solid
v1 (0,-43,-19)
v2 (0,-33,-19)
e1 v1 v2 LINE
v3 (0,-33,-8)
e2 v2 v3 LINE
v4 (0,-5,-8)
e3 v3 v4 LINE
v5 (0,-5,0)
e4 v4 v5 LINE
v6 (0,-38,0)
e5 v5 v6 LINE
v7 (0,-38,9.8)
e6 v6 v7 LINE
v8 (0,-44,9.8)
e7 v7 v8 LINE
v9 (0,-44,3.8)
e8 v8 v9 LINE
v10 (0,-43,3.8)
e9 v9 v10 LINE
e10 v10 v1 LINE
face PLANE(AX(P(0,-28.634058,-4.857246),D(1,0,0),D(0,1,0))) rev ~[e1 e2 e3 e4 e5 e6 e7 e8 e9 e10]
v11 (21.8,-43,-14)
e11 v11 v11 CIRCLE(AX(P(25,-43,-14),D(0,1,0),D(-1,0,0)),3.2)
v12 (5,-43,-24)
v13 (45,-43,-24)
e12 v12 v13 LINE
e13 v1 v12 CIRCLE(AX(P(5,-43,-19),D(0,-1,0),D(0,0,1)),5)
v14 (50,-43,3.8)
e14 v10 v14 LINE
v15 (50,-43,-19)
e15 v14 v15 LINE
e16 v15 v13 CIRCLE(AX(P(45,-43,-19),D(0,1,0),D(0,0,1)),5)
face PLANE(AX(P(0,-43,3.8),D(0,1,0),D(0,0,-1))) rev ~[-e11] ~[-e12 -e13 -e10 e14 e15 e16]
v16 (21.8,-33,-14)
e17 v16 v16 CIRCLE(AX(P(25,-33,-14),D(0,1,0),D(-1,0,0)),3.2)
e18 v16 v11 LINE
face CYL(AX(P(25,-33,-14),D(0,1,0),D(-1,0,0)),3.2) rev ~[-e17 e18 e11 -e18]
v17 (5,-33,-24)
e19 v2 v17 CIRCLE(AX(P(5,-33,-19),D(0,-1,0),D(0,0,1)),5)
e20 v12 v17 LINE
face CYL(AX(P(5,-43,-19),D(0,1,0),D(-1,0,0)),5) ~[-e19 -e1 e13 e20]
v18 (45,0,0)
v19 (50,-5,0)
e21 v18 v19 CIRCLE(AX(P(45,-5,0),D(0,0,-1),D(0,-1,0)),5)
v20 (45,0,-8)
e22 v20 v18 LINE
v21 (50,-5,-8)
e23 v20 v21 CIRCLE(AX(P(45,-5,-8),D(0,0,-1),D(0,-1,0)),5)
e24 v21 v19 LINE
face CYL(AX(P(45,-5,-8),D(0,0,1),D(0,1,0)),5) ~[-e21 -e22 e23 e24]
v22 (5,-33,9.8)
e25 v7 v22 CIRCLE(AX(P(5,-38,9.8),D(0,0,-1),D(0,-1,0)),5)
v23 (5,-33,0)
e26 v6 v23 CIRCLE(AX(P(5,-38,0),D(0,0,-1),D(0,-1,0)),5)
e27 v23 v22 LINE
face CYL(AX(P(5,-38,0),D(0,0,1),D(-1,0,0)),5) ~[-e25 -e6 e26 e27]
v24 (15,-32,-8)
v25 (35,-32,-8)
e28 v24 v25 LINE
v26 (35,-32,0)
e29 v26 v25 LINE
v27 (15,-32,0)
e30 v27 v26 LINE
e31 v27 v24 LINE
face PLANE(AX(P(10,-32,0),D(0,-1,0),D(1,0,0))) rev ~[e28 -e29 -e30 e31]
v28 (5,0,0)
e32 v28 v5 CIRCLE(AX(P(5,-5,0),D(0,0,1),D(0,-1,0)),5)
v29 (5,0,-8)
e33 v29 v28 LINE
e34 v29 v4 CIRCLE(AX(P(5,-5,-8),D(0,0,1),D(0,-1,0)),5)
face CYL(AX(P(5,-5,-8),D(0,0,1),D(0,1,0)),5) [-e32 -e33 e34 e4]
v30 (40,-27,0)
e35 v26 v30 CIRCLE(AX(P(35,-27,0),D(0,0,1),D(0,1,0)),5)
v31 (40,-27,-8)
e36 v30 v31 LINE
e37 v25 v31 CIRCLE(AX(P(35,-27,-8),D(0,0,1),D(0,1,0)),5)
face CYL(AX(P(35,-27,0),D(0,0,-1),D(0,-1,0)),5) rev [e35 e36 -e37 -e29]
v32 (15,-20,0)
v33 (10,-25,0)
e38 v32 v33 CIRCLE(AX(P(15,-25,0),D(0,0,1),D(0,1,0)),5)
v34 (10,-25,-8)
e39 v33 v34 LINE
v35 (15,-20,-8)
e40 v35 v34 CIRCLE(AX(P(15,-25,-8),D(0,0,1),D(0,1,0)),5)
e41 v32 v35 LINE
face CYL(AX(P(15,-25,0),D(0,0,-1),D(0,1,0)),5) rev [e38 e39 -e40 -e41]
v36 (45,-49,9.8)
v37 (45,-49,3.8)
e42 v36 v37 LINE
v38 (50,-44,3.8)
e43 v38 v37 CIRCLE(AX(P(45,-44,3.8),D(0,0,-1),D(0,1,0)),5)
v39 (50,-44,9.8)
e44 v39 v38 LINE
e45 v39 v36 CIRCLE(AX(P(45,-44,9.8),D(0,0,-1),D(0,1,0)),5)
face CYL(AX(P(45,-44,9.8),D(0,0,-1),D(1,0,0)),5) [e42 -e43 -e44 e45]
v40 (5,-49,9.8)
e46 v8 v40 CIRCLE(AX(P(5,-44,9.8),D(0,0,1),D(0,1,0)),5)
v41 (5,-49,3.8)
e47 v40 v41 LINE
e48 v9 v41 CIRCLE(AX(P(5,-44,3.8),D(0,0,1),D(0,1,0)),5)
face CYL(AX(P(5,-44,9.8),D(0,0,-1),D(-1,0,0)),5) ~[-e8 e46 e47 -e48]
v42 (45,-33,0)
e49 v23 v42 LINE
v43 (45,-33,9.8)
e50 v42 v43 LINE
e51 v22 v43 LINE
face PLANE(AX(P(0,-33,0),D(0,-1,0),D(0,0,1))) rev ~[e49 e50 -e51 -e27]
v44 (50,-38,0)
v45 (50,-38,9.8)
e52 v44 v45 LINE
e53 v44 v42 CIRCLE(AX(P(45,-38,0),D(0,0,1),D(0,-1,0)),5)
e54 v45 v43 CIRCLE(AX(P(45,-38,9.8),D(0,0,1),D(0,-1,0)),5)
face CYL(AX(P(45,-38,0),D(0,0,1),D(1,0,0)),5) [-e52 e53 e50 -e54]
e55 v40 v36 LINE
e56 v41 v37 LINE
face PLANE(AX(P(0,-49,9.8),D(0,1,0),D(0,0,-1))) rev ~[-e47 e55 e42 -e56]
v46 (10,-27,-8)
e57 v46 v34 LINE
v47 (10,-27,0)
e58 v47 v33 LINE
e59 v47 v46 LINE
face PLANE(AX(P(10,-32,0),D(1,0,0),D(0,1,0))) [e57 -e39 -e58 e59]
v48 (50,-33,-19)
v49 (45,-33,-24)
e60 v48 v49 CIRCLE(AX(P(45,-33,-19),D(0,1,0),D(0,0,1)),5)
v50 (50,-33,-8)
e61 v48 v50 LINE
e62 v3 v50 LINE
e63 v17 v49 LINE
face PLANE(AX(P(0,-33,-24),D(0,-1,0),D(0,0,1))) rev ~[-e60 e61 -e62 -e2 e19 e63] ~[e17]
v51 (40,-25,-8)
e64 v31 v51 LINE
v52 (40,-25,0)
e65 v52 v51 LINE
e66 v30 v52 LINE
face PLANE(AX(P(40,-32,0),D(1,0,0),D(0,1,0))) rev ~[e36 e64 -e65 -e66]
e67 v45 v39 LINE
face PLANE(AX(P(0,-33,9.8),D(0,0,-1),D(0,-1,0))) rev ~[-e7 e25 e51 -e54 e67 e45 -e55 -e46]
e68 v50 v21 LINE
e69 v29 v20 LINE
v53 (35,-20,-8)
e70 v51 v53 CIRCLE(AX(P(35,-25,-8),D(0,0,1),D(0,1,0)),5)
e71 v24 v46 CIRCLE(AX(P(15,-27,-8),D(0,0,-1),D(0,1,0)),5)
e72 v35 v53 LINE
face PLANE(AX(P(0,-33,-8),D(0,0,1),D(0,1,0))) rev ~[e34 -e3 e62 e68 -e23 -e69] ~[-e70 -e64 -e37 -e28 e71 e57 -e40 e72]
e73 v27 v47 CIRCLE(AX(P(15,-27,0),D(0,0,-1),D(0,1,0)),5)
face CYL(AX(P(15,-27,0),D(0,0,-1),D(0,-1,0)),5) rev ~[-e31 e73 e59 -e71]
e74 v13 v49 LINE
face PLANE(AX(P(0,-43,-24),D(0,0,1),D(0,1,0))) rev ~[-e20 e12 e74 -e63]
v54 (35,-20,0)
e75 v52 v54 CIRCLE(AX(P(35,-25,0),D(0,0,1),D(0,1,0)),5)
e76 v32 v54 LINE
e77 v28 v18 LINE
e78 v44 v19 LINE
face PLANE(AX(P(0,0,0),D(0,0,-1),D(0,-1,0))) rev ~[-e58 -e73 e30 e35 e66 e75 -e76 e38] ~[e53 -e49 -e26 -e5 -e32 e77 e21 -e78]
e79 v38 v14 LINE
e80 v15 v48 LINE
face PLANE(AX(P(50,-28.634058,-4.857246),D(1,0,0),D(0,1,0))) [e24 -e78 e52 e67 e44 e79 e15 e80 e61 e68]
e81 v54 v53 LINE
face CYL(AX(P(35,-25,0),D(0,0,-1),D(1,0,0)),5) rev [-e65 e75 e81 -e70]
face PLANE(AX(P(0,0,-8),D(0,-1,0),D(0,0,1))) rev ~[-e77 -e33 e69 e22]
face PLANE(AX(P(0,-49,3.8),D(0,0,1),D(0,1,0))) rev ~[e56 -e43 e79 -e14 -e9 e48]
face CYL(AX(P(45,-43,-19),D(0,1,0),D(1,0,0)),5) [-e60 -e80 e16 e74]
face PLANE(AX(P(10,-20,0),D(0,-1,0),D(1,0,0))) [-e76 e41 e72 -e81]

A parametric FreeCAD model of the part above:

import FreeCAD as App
import Part
import Sketcher
from FreeCAD import Vector


def edges_at(feature, points):
    """Names of the edges that pass closest to the given points."""
    edges = feature.Shape.Edges
    near = lambda p: min(range(len(edges)), key=lambda i: edges[i].distToShape(Part.Vertex(*p))[0])
    return sorted({f"Edge{near(p) + 1}" for p in points})

doc = App.newDocument("Part")
params = doc.addObject("Spreadsheet::Sheet", "Params")
for row, (alias, value) in enumerate([
    ("sketch1_width", "33 mm"),
    ("sketch1_width2", "16 mm"),
    ("sketch1_width3", "6 mm"),
    ("sketch1_height", "8 mm"),
    ("sketch1_height2", "9.8 mm"),
    ("pad1_length", "50 mm"),
    ("sketch2_diameter", "6.4 mm"),
    ("sketch3_width", "30 mm"),
    ("sketch3_height", "12 mm"),
    ("fillet_radius", "5 mm"),
], start=1):
    params.set(f"A{row}", alias)
    params.set(f"B{row}", "=" + value)
    params.setAlias(f"B{row}", alias)

body = doc.addObject("PartDesign::Body", "Body")

# Sketch on YZ plane
sketch1 = body.newObject("Sketcher::SketchObject", "Sketch")
sketch1.AttachmentSupport = (doc.getObject("YZ_Plane"), [""])
sketch1.MapMode = "FlatFace"
sketch1.addGeometry([
    Part.LineSegment(Vector(0, -8, 0), Vector(0, 0, 0)),  # 0
    Part.LineSegment(Vector(0, 0, 0), Vector(-33, 0, 0)),  # 1
    Part.LineSegment(Vector(-33, 0, 0), Vector(-33, 10, 0)),  # 2
    Part.LineSegment(Vector(-33, 10, 0), Vector(-49, 10, 0)),  # 3
    Part.LineSegment(Vector(-49, 10, 0), Vector(-49, 4, 0)),  # 4
    Part.LineSegment(Vector(-49, 4, 0), Vector(-43, 4, 0)),  # 5
    Part.LineSegment(Vector(-43, 4, 0), Vector(-43, -24, 0)),  # 6
    Part.LineSegment(Vector(-43, -24, 0), Vector(-33, -24, 0)),  # 7
    Part.LineSegment(Vector(-33, -24, 0), Vector(-33, -8, 0)),  # 8
    Part.LineSegment(Vector(-33, -8, 0), Vector(0, -8, 0)),  # 9
], False)
sketch1.addConstraint([
    Sketcher.Constraint("Coincident", 0, 2, 1, 1),
    Sketcher.Constraint("Coincident", 1, 2, 2, 1),
    Sketcher.Constraint("Coincident", 2, 2, 3, 1),
    Sketcher.Constraint("Coincident", 3, 2, 4, 1),
    Sketcher.Constraint("Coincident", 4, 2, 5, 1),
    Sketcher.Constraint("Coincident", 5, 2, 6, 1),
    Sketcher.Constraint("Coincident", 6, 2, 7, 1),
    Sketcher.Constraint("Coincident", 7, 2, 8, 1),
    Sketcher.Constraint("Coincident", 8, 2, 9, 1),
    Sketcher.Constraint("Coincident", 9, 2, 0, 1),
    Sketcher.Constraint("Vertical", 0),
    Sketcher.Constraint("Horizontal", 1),
    Sketcher.Constraint("Vertical", 2),
    Sketcher.Constraint("Horizontal", 3),
    Sketcher.Constraint("Vertical", 4),
    Sketcher.Constraint("Horizontal", 5),
    Sketcher.Constraint("Vertical", 6),
    Sketcher.Constraint("Horizontal", 7),
    Sketcher.Constraint("Vertical", 8),
    Sketcher.Constraint("Horizontal", 9),
    Sketcher.Constraint("Coincident", 0, 2, -1, 1),
    Sketcher.Constraint("Vertical", 2, 2, 7, 2),
    Sketcher.Constraint("Equal", 5, 4),
    Sketcher.Constraint("Equal", 3, 8),
    Sketcher.Constraint("DistanceX", 1, 2, 1, 1, 33.0),
    Sketcher.Constraint("DistanceX", 3, 2, 3, 1, 16.0),
    Sketcher.Constraint("DistanceX", 5, 1, 5, 2, 6.0),
    Sketcher.Constraint("DistanceY", 0, 1, 0, 2, 8.0),
    Sketcher.Constraint("DistanceY", 2, 1, 2, 2, 9.8),
])
sketch1.setExpression("Constraints[24]", "Params.sketch1_width")
sketch1.setExpression("Constraints[25]", "Params.sketch1_width2")
sketch1.setExpression("Constraints[26]", "Params.sketch1_width3")
sketch1.setExpression("Constraints[27]", "Params.sketch1_height")
sketch1.setExpression("Constraints[28]", "Params.sketch1_height2")
pad1 = body.newObject("PartDesign::Pad", "Pad")
pad1.Profile = sketch1
pad1.setExpression("Length", "Params.pad1_length")

# Sketch on XZ plane
sketch2 = body.newObject("Sketcher::SketchObject", "Sketch001")
sketch2.AttachmentSupport = (doc.getObject("XZ_Plane"), [""])
sketch2.MapMode = "FlatFace"
sketch2.AttachmentOffset = App.Placement(Vector(0, 0, 33), App.Rotation())
sketch2.addGeometry(Part.Circle(Vector(25, -14, 0), Vector(0, 0, 1), 3.2), False)
sketch2.addConstraint([
    Sketcher.Constraint("Diameter", 0, 6.4),
    Sketcher.Constraint("DistanceX", -1, 1, 0, 3, 25.0),
    Sketcher.Constraint("DistanceY", 0, 3, -1, 1, 14.0),
])
sketch2.setExpression("Constraints[0]", "Params.sketch2_diameter")
pocket1 = body.newObject("PartDesign::Pocket", "Pocket")
pocket1.Profile = sketch2
pocket1.Type = "ThroughAll"
pocket1.Reversed = True

# Sketch on XY plane
sketch3 = body.newObject("Sketcher::SketchObject", "Sketch002")
sketch3.AttachmentSupport = (doc.getObject("XY_Plane"), [""])
sketch3.MapMode = "FlatFace"
sketch3.addGeometry([
    Part.LineSegment(Vector(10, -20, 0), Vector(10, -32, 0)),
    Part.LineSegment(Vector(10, -32, 0), Vector(40, -32, 0)),
    Part.LineSegment(Vector(40, -32, 0), Vector(40, -20, 0)),
    Part.LineSegment(Vector(40, -20, 0), Vector(10, -20, 0)),
], False)
sketch3.addConstraint([
    Sketcher.Constraint("Coincident", 0, 2, 1, 1),
    Sketcher.Constraint("Coincident", 1, 2, 2, 1),
    Sketcher.Constraint("Coincident", 2, 2, 3, 1),
    Sketcher.Constraint("Coincident", 3, 2, 0, 1),
    Sketcher.Constraint("Vertical", 0),
    Sketcher.Constraint("Horizontal", 1),
    Sketcher.Constraint("Vertical", 2),
    Sketcher.Constraint("Horizontal", 3),
    Sketcher.Constraint("DistanceX", 1, 1, 1, 2, 30.0),
    Sketcher.Constraint("DistanceY", 0, 2, 0, 1, 12.0),
    Sketcher.Constraint("DistanceX", -1, 1, 0, 2, 10.0),
    Sketcher.Constraint("DistanceY", 0, 2, -1, 1, 32.0),
])
sketch3.setExpression("Constraints[8]", "Params.sketch3_width")
sketch3.setExpression("Constraints[9]", "Params.sketch3_height")
pocket2 = body.newObject("PartDesign::Pocket", "Pocket001")
pocket2.Profile = sketch3
pocket2.Type = "ThroughAll"
doc.recompute()

fillet = body.newObject("PartDesign::Fillet", "Fillet")
fillet.Base = (pocket2, edges_at(pocket2, [
    (50, 0, -4),
    (0, 0, -4),
    (50, -33, 4.9),
    (0, -33, 4.9),
    (50, -49, 6.8),
    (0, -49, 6.8),
    (50, -38, -24),
    (0, -38, -24),
    (10, -32, -4),
    (40, -32, -4),
    (40, -20, -4),
    (10, -20, -4),
]))
fillet.setExpression("Radius", "Params.fillet_radius")

doc.recompute()
